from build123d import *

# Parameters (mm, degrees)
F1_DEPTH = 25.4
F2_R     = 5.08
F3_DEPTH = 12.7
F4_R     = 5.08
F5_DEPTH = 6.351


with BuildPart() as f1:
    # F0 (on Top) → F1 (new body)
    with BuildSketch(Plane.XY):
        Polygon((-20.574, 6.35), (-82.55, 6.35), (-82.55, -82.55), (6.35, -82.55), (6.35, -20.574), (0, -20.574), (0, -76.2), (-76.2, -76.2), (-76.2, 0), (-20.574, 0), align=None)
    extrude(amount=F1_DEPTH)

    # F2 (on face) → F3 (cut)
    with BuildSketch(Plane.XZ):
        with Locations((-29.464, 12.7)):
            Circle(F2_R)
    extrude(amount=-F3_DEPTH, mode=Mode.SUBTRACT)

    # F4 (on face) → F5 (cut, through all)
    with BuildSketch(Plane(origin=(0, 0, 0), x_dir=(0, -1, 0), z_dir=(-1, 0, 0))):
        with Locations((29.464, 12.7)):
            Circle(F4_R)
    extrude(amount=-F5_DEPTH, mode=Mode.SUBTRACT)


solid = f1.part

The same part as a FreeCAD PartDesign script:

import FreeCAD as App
import Part
import Sketcher

V = App.Vector
Q = App.Units.Quantity

doc = App.newDocument("Part")
body = doc.addObject("PartDesign::Body", "Body")

# Sketch on XY plane
sketch1 = body.newObject("Sketcher::SketchObject", "Sketch")
sketch1.AttachmentSupport = (doc.getObject("XY_Plane"), [""])
sketch1.MapMode = "FlatFace"
sketch1.addGeometry([
    Part.LineSegment(V(-21, 6, 0), V(-83, 6, 0)),  # 0
    Part.LineSegment(V(-83, 6, 0), V(-83, -83, 0)),  # 1
    Part.LineSegment(V(-83, -83, 0), V(6, -83, 0)),  # 2
    Part.LineSegment(V(6, -83, 0), V(6, -21, 0)),  # 3
    Part.LineSegment(V(6, -21, 0), V(0, -21, 0)),  # 4
    Part.LineSegment(V(0, -21, 0), V(0, -76, 0)),  # 5
    Part.LineSegment(V(0, -76, 0), V(-76, -76, 0)),  # 6
    Part.LineSegment(V(-76, -76, 0), V(-76, 0, 0)),  # 7
    Part.LineSegment(V(-76, 0, 0), V(-21, 0, 0)),  # 8
    Part.LineSegment(V(-21, 0, 0), V(-21, 6, 0)),  # 9
], False)
sketch1.addConstraint([
    Sketcher.Constraint("Coincident", 0, 2, 1, 1),
    Sketcher.Constraint("Coincident", 1, 2, 2, 1),
    Sketcher.Constraint("Coincident", 2, 2, 3, 1),
    Sketcher.Constraint("Coincident", 3, 2, 4, 1),
    Sketcher.Constraint("Coincident", 4, 2, 5, 1),
    Sketcher.Constraint("Coincident", 5, 2, 6, 1),
    Sketcher.Constraint("Coincident", 6, 2, 7, 1),
    Sketcher.Constraint("Coincident", 7, 2, 8, 1),
    Sketcher.Constraint("Coincident", 8, 2, 9, 1),
    Sketcher.Constraint("Coincident", 9, 2, 0, 1),
    Sketcher.Constraint("Horizontal", 0),
    Sketcher.Constraint("Vertical", 1),
    Sketcher.Constraint("Horizontal", 2),
    Sketcher.Constraint("Vertical", 3),
    Sketcher.Constraint("Horizontal", 4),
    Sketcher.Constraint("Vertical", 5),
    Sketcher.Constraint("Horizontal", 6),
    Sketcher.Constraint("Vertical", 7),
    Sketcher.Constraint("Horizontal", 8),
    Sketcher.Constraint("Vertical", 9),
    Sketcher.Constraint("PointOnObject", 4, 2, -2),
    Sketcher.Constraint("PointOnObject", 7, 2, -1),
    Sketcher.Constraint("Equal", 2, 1),
    Sketcher.Constraint("Equal", 0, 3),
    Sketcher.Constraint("Equal", 8, 5),
    Sketcher.Constraint("Equal", 6, 7),
    Sketcher.Constraint("DistanceX", 6, 2, 6, 1, Q("3 in")),
    Sketcher.Constraint("DistanceX", 2, 1, 2, 2, Q("3.5 in")),
    Sketcher.Constraint("DistanceX", 0, 2, 0, 1, Q("2.44 in")),
    Sketcher.Constraint("DistanceX", 4, 2, 4, 1, Q("0.25 in")),
])
pad1 = body.newObject("PartDesign::Pad", "Pad")
pad1.Profile = sketch1
pad1.Length = Q("1 in")

# Sketch on XZ plane
sketch2 = body.newObject("Sketcher::SketchObject", "Sketch001")
sketch2.AttachmentSupport = (doc.getObject("XZ_Plane"), [""])
sketch2.MapMode = "FlatFace"
sketch2.addGeometry(Part.Circle(V(-29, 13, 0), V(0, 0, 1), 5), False)
sketch2.addConstraint([
    Sketcher.Constraint("Diameter", 0, Q("0.4 in")),
    Sketcher.Constraint("DistanceY", -1, 1, 0, 3, Q("0.5 in")),
    Sketcher.Constraint("DistanceX", 0, 3, -1, 1, Q("1.16 in")),
])
pocket1 = body.newObject("PartDesign::Pocket", "Pocket")
pocket1.Profile = sketch2
pocket1.Length = Q("0.5 in")

# Sketch on YZ plane
sketch3 = body.newObject("Sketcher::SketchObject", "Sketch002")
sketch3.AttachmentSupport = (doc.getObject("YZ_Plane"), [""])
sketch3.MapMode = "FlatFace"
sketch3.addGeometry(Part.Circle(V(-29, 13, 0), V(0, 0, 1), 5), False)
sketch3.addConstraint([
    Sketcher.Constraint("Diameter", 0, Q("0.4 in")),
    Sketcher.Constraint("DistanceY", -1, 1, 0, 3, Q("0.5 in")),
    Sketcher.Constraint("DistanceX", 0, 3, -1, 1, Q("1.16 in")),
])
pocket2 = body.newObject("PartDesign::Pocket", "Pocket001")
pocket2.Profile = sketch3
pocket2.Type = "ThroughAll"
pocket2.Reversed = True

doc.recompute()
